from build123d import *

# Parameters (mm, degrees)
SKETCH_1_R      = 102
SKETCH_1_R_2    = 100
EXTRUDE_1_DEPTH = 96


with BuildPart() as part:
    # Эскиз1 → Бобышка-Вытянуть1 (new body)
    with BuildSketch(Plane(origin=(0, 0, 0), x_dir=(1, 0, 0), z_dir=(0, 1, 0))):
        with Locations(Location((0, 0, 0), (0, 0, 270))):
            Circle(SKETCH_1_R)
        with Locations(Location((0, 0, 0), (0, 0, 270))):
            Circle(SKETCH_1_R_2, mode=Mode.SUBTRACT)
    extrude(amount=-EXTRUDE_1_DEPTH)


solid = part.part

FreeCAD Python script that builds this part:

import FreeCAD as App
import Part
import Sketcher

V = App.Vector
Q = App.Units.Quantity

doc = App.newDocument("Part")
params = doc.addObject("Spreadsheet::Sheet", "Params")
for row, (alias, value) in enumerate([
    ("sketch1_diameter", "204 mm"),
    ("sketch1_diameter2", "200 mm"),
    ("pad1_length", "96 mm"),
], start=1):
    params.set(f"A{row}", alias)
    params.set(f"B{row}", "=" + value)
    params.setAlias(f"B{row}", alias)

body = doc.addObject("PartDesign::Body", "Body")

# Sketch on XZ plane
sketch1 = body.newObject("Sketcher::SketchObject", "Sketch")
sketch1.AttachmentSupport = (doc.getObject("XZ_Plane"), [""])
sketch1.MapMode = "FlatFace"
sketch1.addGeometry([
    Part.Circle(V(0, 0, 0), V(0, 0, 1), 102),
    Part.Circle(V(0, 0, 0), V(0, 0, 1), 100),
], False)
sketch1.addConstraint([
    Sketcher.Constraint("Coincident", 0, 3, -1, 1),
    Sketcher.Constraint("Coincident", 1, 3, -1, 1),
    Sketcher.Constraint("Diameter", 0, Q("204 mm")),
    Sketcher.Constraint("Diameter", 1, Q("200 mm")),
])
sketch1.setExpression("Constraints[2]", "Params.sketch1_diameter")
sketch1.setExpression("Constraints[3]", "Params.sketch1_diameter2")
pad1 = body.newObject("PartDesign::Pad", "Pad")
pad1.Profile = sketch1
pad1.setExpression("Length", "Params.pad1_length")

doc.recompute()
